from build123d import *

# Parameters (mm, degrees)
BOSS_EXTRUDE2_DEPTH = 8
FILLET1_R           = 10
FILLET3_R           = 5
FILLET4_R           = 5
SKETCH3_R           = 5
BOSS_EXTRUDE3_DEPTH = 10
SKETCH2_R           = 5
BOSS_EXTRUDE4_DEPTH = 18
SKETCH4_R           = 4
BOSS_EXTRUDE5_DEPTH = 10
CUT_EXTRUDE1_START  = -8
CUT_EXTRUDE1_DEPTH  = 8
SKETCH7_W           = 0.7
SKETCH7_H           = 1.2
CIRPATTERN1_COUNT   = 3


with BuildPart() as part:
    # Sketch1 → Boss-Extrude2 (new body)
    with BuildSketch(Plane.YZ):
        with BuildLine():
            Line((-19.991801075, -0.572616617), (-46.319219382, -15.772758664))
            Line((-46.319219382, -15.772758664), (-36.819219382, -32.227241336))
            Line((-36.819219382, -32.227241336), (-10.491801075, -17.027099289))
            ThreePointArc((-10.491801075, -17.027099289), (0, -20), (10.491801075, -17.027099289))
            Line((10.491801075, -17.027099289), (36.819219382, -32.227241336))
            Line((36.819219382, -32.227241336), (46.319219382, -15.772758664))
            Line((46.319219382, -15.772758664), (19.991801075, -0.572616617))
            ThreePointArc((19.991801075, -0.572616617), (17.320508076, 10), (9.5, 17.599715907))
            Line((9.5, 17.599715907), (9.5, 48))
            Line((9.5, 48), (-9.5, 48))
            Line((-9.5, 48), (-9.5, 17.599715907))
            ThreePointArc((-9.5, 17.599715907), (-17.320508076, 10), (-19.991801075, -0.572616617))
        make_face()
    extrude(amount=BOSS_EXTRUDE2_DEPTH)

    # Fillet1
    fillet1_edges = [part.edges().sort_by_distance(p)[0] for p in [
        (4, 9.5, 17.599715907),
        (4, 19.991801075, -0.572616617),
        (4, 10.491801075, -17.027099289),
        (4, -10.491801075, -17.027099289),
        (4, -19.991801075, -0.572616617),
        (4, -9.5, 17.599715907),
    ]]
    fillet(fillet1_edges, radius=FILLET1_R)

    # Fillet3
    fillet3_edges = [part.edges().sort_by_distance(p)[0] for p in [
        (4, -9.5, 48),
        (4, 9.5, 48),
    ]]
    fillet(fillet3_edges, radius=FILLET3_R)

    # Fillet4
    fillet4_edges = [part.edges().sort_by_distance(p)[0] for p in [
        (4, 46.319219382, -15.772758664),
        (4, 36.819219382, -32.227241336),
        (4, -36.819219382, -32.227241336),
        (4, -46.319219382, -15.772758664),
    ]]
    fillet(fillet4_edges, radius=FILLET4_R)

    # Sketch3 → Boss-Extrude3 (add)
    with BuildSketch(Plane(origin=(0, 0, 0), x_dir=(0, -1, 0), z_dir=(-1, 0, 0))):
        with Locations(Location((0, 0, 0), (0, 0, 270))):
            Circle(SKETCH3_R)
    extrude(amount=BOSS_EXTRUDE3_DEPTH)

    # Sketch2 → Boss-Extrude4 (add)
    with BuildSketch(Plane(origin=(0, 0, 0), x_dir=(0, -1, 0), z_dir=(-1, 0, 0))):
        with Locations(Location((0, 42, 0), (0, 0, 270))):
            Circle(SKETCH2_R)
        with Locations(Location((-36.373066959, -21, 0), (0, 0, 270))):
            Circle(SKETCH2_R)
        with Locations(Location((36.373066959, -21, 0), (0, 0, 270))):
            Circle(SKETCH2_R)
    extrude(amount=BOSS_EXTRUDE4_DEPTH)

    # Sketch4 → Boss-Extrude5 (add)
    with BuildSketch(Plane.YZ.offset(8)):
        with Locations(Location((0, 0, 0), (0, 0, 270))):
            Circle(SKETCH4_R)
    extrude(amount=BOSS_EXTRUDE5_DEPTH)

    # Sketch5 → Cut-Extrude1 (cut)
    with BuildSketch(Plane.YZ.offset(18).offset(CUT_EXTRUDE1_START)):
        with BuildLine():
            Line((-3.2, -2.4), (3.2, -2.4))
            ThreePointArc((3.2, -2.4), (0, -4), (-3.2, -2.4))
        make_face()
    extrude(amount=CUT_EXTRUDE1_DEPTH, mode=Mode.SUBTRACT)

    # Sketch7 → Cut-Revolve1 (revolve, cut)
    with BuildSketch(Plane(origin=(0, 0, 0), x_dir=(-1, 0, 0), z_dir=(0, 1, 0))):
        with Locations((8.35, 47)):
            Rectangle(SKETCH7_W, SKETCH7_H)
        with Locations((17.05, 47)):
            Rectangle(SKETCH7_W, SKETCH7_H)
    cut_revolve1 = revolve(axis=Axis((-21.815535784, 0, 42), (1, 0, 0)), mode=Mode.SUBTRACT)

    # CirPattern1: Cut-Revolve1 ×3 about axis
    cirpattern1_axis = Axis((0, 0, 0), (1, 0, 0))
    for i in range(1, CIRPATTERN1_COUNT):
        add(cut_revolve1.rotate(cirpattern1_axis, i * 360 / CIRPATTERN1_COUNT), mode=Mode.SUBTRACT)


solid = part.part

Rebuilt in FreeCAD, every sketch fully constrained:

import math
import FreeCAD as App
import Part
import Sketcher
from FreeCAD import Vector
Q = App.Units.Quantity


def edges_at(feature, points):
    """Names of the edges that pass closest to the given points."""
    edges = feature.Shape.Edges
    near = lambda p: min(range(len(edges)), key=lambda i: edges[i].distToShape(Part.Vertex(*p))[0])
    return sorted({f"Edge{near(p) + 1}" for p in points})

doc = App.newDocument("Part")
params = doc.addObject("Spreadsheet::Sheet", "Params")
for row, (alias, value) in enumerate([
    ("sketch1_radius", "20 mm"),
    ("sketch1_width", "19 mm"),
    ("sketch1_length", "19 mm"),
    ("pad1_length", "8 mm"),
    ("fillet_radius", "10 mm"),
    ("fillet2_radius", "5 mm"),
    ("fillet3_radius", "5 mm"),
    ("sketch2_diameter", "10 mm"),
    ("pad2_length", "10 mm"),
    ("sketch3_diameter", "10 mm"),
    ("pad3_length", "18 mm"),
    ("sketch4_diameter", "8 mm"),
    ("pad4_length", "10 mm"),
    ("sketch5_radius", "4 mm"),
    ("sketch5_width", "6.4 mm"),
    ("pocket1_length", "8 mm"),
    ("sketch6_width", "0.7 mm"),
    ("sketch6_width2", "9.4 mm"),
    ("sketch6_height", "1.2 mm"),
    ("groove_angle", "360 deg"),
], start=1):
    params.set(f"A{row}", alias)
    params.set(f"B{row}", "=" + value)
    params.setAlias(f"B{row}", alias)

body = doc.addObject("PartDesign::Body", "Body")

# Sketch on YZ plane
sketch1 = body.newObject("Sketcher::SketchObject", "Sketch")
sketch1.AttachmentSupport = (doc.getObject("YZ_Plane"), [""])
sketch1.MapMode = "FlatFace"
sketch1.addGeometry(Part.LineSegment(Vector(-19.991801, -0.572617, 0), Vector(-46.319219, -15.772759, 0)), False)
sketch1.addGeometry(Part.LineSegment(Vector(-46.319219, -15.772759, 0), Vector(-36.819219, -32.227241, 0)), False)
sketch1.addGeometry(Part.LineSegment(Vector(-36.819219, -32.227241, 0), Vector(-10.491801, -17.027099, 0)), False)
sketch1.addGeometry(Part.ArcOfCircle(Part.Circle(Vector(0, 0, 0), Vector(0, 0, 1), 20), math.radians(-121.64065), math.radians(-58.35935)), False)
sketch1.addGeometry(Part.LineSegment(Vector(10.491801, -17.027099, 0), Vector(36.819219, -32.227241, 0)), False)
sketch1.addGeometry(Part.LineSegment(Vector(36.819219, -32.227241, 0), Vector(46.319219, -15.772759, 0)), False)
sketch1.addGeometry(Part.LineSegment(Vector(46.319219, -15.772759, 0), Vector(19.991801, -0.572617, 0)), False)
sketch1.addGeometry(Part.ArcOfCircle(Part.Circle(Vector(0, 0, 0), Vector(0, 0, 1), 20), math.radians(-1.64065), math.radians(61.64065)), False)
sketch1.addGeometry(Part.LineSegment(Vector(9.5, 17.599716, 0), Vector(9.5, 48, 0)), False)
sketch1.addGeometry(Part.LineSegment(Vector(9.5, 48, 0), Vector(-9.5, 48, 0)), False)
sketch1.addGeometry(Part.LineSegment(Vector(-9.5, 48, 0), Vector(-9.5, 17.599716, 0)), False)
sketch1.addGeometry(Part.ArcOfCircle(Part.Circle(Vector(0, 0, 0), Vector(0, 0, 1), 20), math.radians(118.35935), math.radians(181.64065)), False)
sketch1.addConstraint(Sketcher.Constraint("Coincident", 0, 2, 1, 1))
sketch1.addConstraint(Sketcher.Constraint("Coincident", 1, 2, 2, 1))
sketch1.addConstraint(Sketcher.Constraint("Coincident", 2, 2, 3, 1))
sketch1.addConstraint(Sketcher.Constraint("Coincident", 3, 2, 4, 1))
sketch1.addConstraint(Sketcher.Constraint("Coincident", 4, 2, 5, 1))
sketch1.addConstraint(Sketcher.Constraint("Coincident", 5, 2, 6, 1))
sketch1.addConstraint(Sketcher.Constraint("Coincident", 6, 2, 7, 1))
sketch1.addConstraint(Sketcher.Constraint("Coincident", 7, 2, 8, 1))
sketch1.addConstraint(Sketcher.Constraint("Coincident", 8, 2, 9, 1))
sketch1.addConstraint(Sketcher.Constraint("Coincident", 9, 2, 10, 1))
sketch1.addConstraint(Sketcher.Constraint("Coincident", 10, 2, 11, 1))
sketch1.addConstraint(Sketcher.Constraint("Coincident", 11, 2, 0, 1))
sketch1.addConstraint(Sketcher.Constraint("Vertical", 8))
sketch1.addConstraint(Sketcher.Constraint("Horizontal", 9))
sketch1.addConstraint(Sketcher.Constraint("Vertical", 10))
sketch1.addConstraint(Sketcher.Constraint("Coincident", 3, 3, -1, 1))
sketch1.addConstraint(Sketcher.Constraint("Coincident", 7, 3, -1, 1))
sketch1.addConstraint(Sketcher.Constraint("Coincident", 11, 3, -1, 1))
sketch1.addConstraint(Sketcher.Constraint("Equal", 3, 7))
sketch1.addConstraint(Sketcher.Constraint("Equal", 7, 11))
sketch1.addConstraint(Sketcher.Constraint("Symmetric", 1, 2, 4, 2, -2))
sketch1.addConstraint(Sketcher.Constraint("Symmetric", 0, 2, 5, 2, -2))
sketch1.addConstraint(Sketcher.Constraint("Perpendicular", 0, 1))
sketch1.addConstraint(Sketcher.Constraint("Perpendicular", 1, 2))
sketch1.addConstraint(Sketcher.Constraint("Perpendicular", 4, 5))
sketch1.addConstraint(Sketcher.Constraint("Perpendicular", 5, 6))
sketch1.addConstraint(Sketcher.Constraint("Horizontal", 7, 2, 10, 2))
sketch1.addConstraint(Sketcher.Constraint("Equal", 0, 2))
sketch1.addConstraint(Sketcher.Constraint("Radius", 3, Q("20 mm")))
sketch1.addConstraint(Sketcher.Constraint("DistanceX", 9, 2, 9, 1, Q("19 mm")))
sketch1.addConstraint(Sketcher.Constraint("Angle", 0, Q("-150 deg")))
sketch1.addConstraint(Sketcher.Constraint("Distance", 1, Q("19 mm")))
sketch1.addConstraint(Sketcher.Constraint("DistanceY", -1, 1, 8, 2, Q("48 mm")))
sketch1.addConstraint(Sketcher.Constraint("DistanceX", 0, 2, -1, 1, Q("46.319219 mm")))
sketch1.setExpression("Constraints[28]", "Params.sketch1_radius")
sketch1.setExpression("Constraints[29]", "Params.sketch1_width")
sketch1.setExpression("Constraints[31]", "Params.sketch1_length")
pad1 = body.newObject("PartDesign::Pad", "Pad")
pad1.Profile = sketch1
pad1.setExpression("Length", "Params.pad1_length")
doc.recompute()

fillet = body.newObject("PartDesign::Fillet", "Fillet")
fillet.Base = (pad1, edges_at(pad1, [
    (4, 9.5, 17.6),
    (4, 19.992, -0.573),
    (4, 10.492, -17.027),
    (4, -10.492, -17.027),
    (4, -19.992, -0.573),
    (4, -9.5, 17.6),
]))
fillet.setExpression("Radius", "Params.fillet_radius")
doc.recompute()

fillet2 = body.newObject("PartDesign::Fillet", "Fillet001")
fillet2.Base = (fillet, edges_at(fillet, [(4, -9.5, 48), (4, 9.5, 48)]))
fillet2.setExpression("Radius", "Params.fillet2_radius")
doc.recompute()

fillet3 = body.newObject("PartDesign::Fillet", "Fillet002")
fillet3.Base = (fillet2, edges_at(fillet2, [
    (4, 46.319, -15.773),
    (4, 36.819, -32.227),
    (4, -36.819, -32.227),
    (4, -46.319, -15.773),
]))
fillet3.setExpression("Radius", "Params.fillet3_radius")

# Sketch on YZ plane
sketch2 = body.newObject("Sketcher::SketchObject", "Sketch001")
sketch2.AttachmentSupport = (doc.getObject("YZ_Plane"), [""])
sketch2.MapMode = "FlatFace"
sketch2.addGeometry(Part.Circle(Vector(0, 0, 0), Vector(0, 0, 1), 5), False)
sketch2.addConstraint(Sketcher.Constraint("Coincident", 0, 3, -1, 1))
sketch2.addConstraint(Sketcher.Constraint("Diameter", 0, Q("10 mm")))
sketch2.setExpression("Constraints[1]", "Params.sketch2_diameter")
pad2 = body.newObject("PartDesign::Pad", "Pad001")
pad2.Profile = sketch2
pad2.setExpression("Length", "Params.pad2_length")
pad2.Reversed = True

# Sketch on YZ plane
sketch3 = body.newObject("Sketcher::SketchObject", "Sketch002")
sketch3.AttachmentSupport = (doc.getObject("YZ_Plane"), [""])
sketch3.MapMode = "FlatFace"
sketch3.addGeometry(Part.Circle(Vector(0, 42, 0), Vector(0, 0, 1), 5), False)
sketch3.addGeometry(Part.Circle(Vector(36.373067, -21, 0), Vector(0, 0, 1), 5), False)
sketch3.addGeometry(Part.Circle(Vector(-36.373067, -21, 0), Vector(0, 0, 1), 5), False)
sketch3.addConstraint(Sketcher.Constraint("Equal", 0, 1))
sketch3.addConstraint(Sketcher.Constraint("Equal", 1, 2))
sketch3.addConstraint(Sketcher.Constraint("Symmetric", 1, 3, 2, 3, -2))
sketch3.addConstraint(Sketcher.Constraint("PointOnObject", 0, 3, -2))
sketch3.addConstraint(Sketcher.Constraint("Diameter", 0, Q("10 mm")))
sketch3.addConstraint(Sketcher.Constraint("DistanceY", -1, 1, 0, 3, Q("42 mm")))
sketch3.addConstraint(Sketcher.Constraint("DistanceY", 1, 3, -1, 1, Q("21 mm")))
sketch3.addConstraint(Sketcher.Constraint("DistanceX", -1, 1, 1, 3, Q("36.373067 mm")))
sketch3.setExpression("Constraints[4]", "Params.sketch3_diameter")
pad3 = body.newObject("PartDesign::Pad", "Pad002")
pad3.Profile = sketch3
pad3.setExpression("Length", "Params.pad3_length")
pad3.Reversed = True

# Sketch on YZ plane
sketch4 = body.newObject("Sketcher::SketchObject", "Sketch003")
sketch4.AttachmentSupport = (doc.getObject("YZ_Plane"), [""])
sketch4.MapMode = "FlatFace"
sketch4.AttachmentOffset = App.Placement(Vector(0, 0, 8), App.Rotation())
sketch4.addGeometry(Part.Circle(Vector(0, 0, 0), Vector(0, 0, 1), 4), False)
sketch4.addConstraint(Sketcher.Constraint("Coincident", 0, 3, -1, 1))
sketch4.addConstraint(Sketcher.Constraint("Diameter", 0, Q("8 mm")))
sketch4.setExpression("Constraints[1]", "Params.sketch4_diameter")
pad4 = body.newObject("PartDesign::Pad", "Pad003")
pad4.Profile = sketch4
pad4.setExpression("Length", "Params.pad4_length")

# Sketch on YZ plane
sketch5 = body.newObject("Sketcher::SketchObject", "Sketch004")
sketch5.AttachmentSupport = (doc.getObject("YZ_Plane"), [""])
sketch5.MapMode = "FlatFace"
sketch5.AttachmentOffset = App.Placement(Vector(0, 0, 10), App.Rotation())
sketch5.addGeometry(Part.LineSegment(Vector(3.2, -2.4, 0), Vector(-3.2, -2.4, 0)), False)
sketch5.addGeometry(Part.ArcOfCircle(Part.Circle(Vector(0, 0, 0), Vector(0, 0, 1), 4), math.radians(-143.130102), math.radians(-36.869898)), False)
sketch5.addConstraint(Sketcher.Constraint("Coincident", 0, 1, 1, 2))
sketch5.addConstraint(Sketcher.Constraint("Coincident", 1, 1, 0, 2))
sketch5.addConstraint(Sketcher.Constraint("Horizontal", 0))
sketch5.addConstraint(Sketcher.Constraint("Coincident", 1, 3, -1, 1))
sketch5.addConstraint(Sketcher.Constraint("Radius", 1, Q("4 mm")))
sketch5.addConstraint(Sketcher.Constraint("DistanceX", 0, 2, 0, 1, Q("6.4 mm")))
sketch5.setExpression("Constraints[4]", "Params.sketch5_radius")
sketch5.setExpression("Constraints[5]", "Params.sketch5_width")
pocket1 = body.newObject("PartDesign::Pocket", "Pocket")
pocket1.Profile = sketch5
pocket1.setExpression("Length", "Params.pocket1_length")
pocket1.Reversed = True

# Sketch on XZ plane
sketch6 = body.newObject("Sketcher::SketchObject", "Sketch005")
sketch6.AttachmentSupport = (doc.getObject("XZ_Plane"), [""])
sketch6.MapMode = "FlatFace"
sketch6.addGeometry(Part.LineSegment(Vector(-8, 47.6, 0), Vector(-8, 46.4, 0)), False)
sketch6.addGeometry(Part.LineSegment(Vector(-8, 46.4, 0), Vector(-8.7, 46.4, 0)), False)
sketch6.addGeometry(Part.LineSegment(Vector(-8.7, 46.4, 0), Vector(-8.7, 47.6, 0)), False)
sketch6.addGeometry(Part.LineSegment(Vector(-8.7, 47.6, 0), Vector(-8, 47.6, 0)), False)
sketch6.addGeometry(Part.LineSegment(Vector(-16.7, 47.6, 0), Vector(-16.7, 46.4, 0)), False)
sketch6.addGeometry(Part.LineSegment(Vector(-16.7, 46.4, 0), Vector(-17.4, 46.4, 0)), False)
sketch6.addGeometry(Part.LineSegment(Vector(-17.4, 46.4, 0), Vector(-17.4, 47.6, 0)), False)
sketch6.addGeometry(Part.LineSegment(Vector(-17.4, 47.6, 0), Vector(-16.7, 47.6, 0)), False)
sketch6.addGeometry(Part.LineSegment(Vector(-17.4, 42, 0), Vector(-8, 42, 0)), True)  # axis
sketch6.addConstraint(Sketcher.Constraint("Coincident", 0, 2, 1, 1))
sketch6.addConstraint(Sketcher.Constraint("Coincident", 1, 2, 2, 1))
sketch6.addConstraint(Sketcher.Constraint("Coincident", 2, 2, 3, 1))
sketch6.addConstraint(Sketcher.Constraint("Coincident", 3, 2, 0, 1))
sketch6.addConstraint(Sketcher.Constraint("Coincident", 4, 2, 5, 1))
sketch6.addConstraint(Sketcher.Constraint("Coincident", 5, 2, 6, 1))
sketch6.addConstraint(Sketcher.Constraint("Coincident", 6, 2, 7, 1))
sketch6.addConstraint(Sketcher.Constraint("Coincident", 7, 2, 4, 1))
sketch6.addConstraint(Sketcher.Constraint("Vertical", 0))
sketch6.addConstraint(Sketcher.Constraint("Horizontal", 1))
sketch6.addConstraint(Sketcher.Constraint("Vertical", 2))
sketch6.addConstraint(Sketcher.Constraint("Horizontal", 3))
sketch6.addConstraint(Sketcher.Constraint("Vertical", 4))
sketch6.addConstraint(Sketcher.Constraint("Horizontal", 5))
sketch6.addConstraint(Sketcher.Constraint("Vertical", 6))
sketch6.addConstraint(Sketcher.Constraint("Horizontal", 7))
sketch6.addConstraint(Sketcher.Constraint("Horizontal", 8))
sketch6.addConstraint(Sketcher.Constraint("Horizontal", 1, 2, 4, 2))
sketch6.addConstraint(Sketcher.Constraint("Horizontal", 3, 2, 6, 2))
sketch6.addConstraint(Sketcher.Constraint("Vertical", 6, 2, 8, 1))
sketch6.addConstraint(Sketcher.Constraint("Vertical", 3, 2, 8, 2))
sketch6.addConstraint(Sketcher.Constraint("Equal", 3, 5))
sketch6.addConstraint(Sketcher.Constraint("DistanceX", 1, 2, 1, 1, Q("0.7 mm")))
sketch6.addConstraint(Sketcher.Constraint("DistanceX", 8, 1, 8, 2, Q("9.4 mm")))
sketch6.addConstraint(Sketcher.Constraint("DistanceY", 0, 2, 0, 1, Q("1.2 mm")))
sketch6.addConstraint(Sketcher.Constraint("DistanceX", 0, 2, -1, 1, Q("8 mm")))
sketch6.addConstraint(Sketcher.Constraint("DistanceY", -1, 1, 8, 1, Q("42 mm")))
sketch6.addConstraint(Sketcher.Constraint("DistanceY", -1, 1, 0, 2, Q("46.4 mm")))
sketch6.setExpression("Constraints[22]", "Params.sketch6_width")
sketch6.setExpression("Constraints[23]", "Params.sketch6_width2")
sketch6.setExpression("Constraints[24]", "Params.sketch6_height")
groove = body.newObject("PartDesign::Groove", "Groove")
groove.Profile = sketch6
groove.ReferenceAxis = (sketch6, ["Axis0"])
groove.setExpression("Angle", "Params.groove_angle")
doc.recompute()

polarpattern = body.newObject("PartDesign::PolarPattern", "PolarPattern")
polarpattern.Originals = [groove]
polarpattern.Axis = (doc.getObject("X_Axis"), [""])
polarpattern.Angle = 360
polarpattern.Occurrences = 3
body.Tip = polarpattern

doc.recompute()
